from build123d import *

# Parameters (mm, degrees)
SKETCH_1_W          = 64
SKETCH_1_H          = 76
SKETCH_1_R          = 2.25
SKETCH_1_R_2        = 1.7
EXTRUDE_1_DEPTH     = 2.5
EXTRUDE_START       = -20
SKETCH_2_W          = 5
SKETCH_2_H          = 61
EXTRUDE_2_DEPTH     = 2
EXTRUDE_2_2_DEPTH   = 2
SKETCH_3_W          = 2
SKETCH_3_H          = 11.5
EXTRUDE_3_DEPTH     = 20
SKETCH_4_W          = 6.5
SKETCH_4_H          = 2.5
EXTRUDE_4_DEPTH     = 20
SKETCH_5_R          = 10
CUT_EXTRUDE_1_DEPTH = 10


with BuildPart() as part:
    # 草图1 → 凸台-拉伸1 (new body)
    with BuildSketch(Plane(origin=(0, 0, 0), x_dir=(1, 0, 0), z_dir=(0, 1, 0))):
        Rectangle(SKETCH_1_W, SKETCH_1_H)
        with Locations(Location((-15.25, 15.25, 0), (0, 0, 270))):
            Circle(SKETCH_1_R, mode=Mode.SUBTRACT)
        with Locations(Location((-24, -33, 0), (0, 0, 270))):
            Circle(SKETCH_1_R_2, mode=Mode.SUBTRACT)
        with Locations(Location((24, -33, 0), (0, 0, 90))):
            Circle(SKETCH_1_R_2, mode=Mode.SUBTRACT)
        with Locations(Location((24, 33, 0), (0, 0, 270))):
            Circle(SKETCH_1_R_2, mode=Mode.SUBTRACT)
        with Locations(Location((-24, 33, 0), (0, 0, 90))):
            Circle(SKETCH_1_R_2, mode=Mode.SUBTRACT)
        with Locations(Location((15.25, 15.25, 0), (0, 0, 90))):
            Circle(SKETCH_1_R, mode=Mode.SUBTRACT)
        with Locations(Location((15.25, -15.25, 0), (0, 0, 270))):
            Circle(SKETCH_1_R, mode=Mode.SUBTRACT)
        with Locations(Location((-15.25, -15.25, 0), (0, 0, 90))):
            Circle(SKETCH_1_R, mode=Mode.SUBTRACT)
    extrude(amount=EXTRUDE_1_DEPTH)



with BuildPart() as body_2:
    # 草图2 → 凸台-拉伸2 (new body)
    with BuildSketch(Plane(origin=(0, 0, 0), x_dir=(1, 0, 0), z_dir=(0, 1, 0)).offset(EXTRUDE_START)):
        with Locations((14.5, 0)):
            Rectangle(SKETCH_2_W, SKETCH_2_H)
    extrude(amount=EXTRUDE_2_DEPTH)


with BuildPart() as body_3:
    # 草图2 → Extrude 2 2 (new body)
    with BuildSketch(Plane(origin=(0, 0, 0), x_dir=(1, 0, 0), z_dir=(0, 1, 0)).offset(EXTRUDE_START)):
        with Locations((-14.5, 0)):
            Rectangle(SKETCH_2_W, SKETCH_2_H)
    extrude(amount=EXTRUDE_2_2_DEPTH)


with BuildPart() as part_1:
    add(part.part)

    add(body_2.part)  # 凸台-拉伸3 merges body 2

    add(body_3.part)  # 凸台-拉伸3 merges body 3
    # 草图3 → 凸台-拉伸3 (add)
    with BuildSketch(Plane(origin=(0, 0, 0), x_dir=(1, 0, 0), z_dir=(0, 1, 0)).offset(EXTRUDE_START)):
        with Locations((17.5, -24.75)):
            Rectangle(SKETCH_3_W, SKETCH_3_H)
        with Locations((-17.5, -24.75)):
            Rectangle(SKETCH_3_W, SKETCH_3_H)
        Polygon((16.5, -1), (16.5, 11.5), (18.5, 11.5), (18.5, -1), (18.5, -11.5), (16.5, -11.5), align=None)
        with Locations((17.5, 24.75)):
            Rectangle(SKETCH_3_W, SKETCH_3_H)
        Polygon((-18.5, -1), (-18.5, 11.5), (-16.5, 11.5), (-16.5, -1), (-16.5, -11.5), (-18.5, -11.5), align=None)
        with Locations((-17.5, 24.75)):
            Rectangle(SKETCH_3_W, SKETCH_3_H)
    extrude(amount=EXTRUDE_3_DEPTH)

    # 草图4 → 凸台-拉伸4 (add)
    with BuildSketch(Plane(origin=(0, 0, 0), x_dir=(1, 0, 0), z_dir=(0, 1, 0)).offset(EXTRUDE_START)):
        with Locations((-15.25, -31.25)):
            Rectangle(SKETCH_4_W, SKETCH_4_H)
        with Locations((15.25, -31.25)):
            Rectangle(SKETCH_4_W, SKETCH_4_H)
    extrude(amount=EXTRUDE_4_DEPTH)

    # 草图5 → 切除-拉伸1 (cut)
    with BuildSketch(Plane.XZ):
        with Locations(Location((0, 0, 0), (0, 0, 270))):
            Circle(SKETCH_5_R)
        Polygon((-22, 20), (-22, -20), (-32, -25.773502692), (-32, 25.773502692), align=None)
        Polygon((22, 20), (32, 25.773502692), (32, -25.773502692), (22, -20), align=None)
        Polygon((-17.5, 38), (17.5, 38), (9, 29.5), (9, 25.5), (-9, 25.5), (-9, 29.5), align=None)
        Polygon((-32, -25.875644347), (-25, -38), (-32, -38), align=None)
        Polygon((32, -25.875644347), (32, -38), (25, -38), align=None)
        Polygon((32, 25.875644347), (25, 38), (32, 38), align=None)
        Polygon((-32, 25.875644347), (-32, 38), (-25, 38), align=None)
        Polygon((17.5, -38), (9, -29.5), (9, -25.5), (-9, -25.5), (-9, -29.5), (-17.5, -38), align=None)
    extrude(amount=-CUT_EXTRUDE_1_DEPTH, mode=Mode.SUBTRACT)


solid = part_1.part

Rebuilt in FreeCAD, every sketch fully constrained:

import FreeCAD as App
import Part
import Sketcher
from FreeCAD import Vector
Q = App.Units.Quantity

doc = App.newDocument("Part")
body = doc.addObject("PartDesign::Body", "Body")

# Sketch on XZ plane
sketch1 = doc.addObject("Sketcher::SketchObject", "Sketch")
body.addObject(sketch1)
sketch1.AttachmentSupport = (doc.XZ_Plane, [""])
sketch1.MapMode = "FlatFace"
sketch1.addGeometry(Part.LineSegment(Vector(-32, -38, 0), Vector(-32, 38, 0)), False)
sketch1.addGeometry(Part.LineSegment(Vector(-32, 38, 0), Vector(32, 38, 0)), False)
sketch1.addGeometry(Part.LineSegment(Vector(32, 38, 0), Vector(32, -38, 0)), False)
sketch1.addGeometry(Part.LineSegment(Vector(32, -38, 0), Vector(-32, -38, 0)), False)
sketch1.addGeometry(Part.Circle(Vector(-24, 33, 0), Vector(0, 0, 1), 1.7), False)
sketch1.addGeometry(Part.Circle(Vector(-15.2, 15.2, 0), Vector(0, 0, 1), 2.2), False)
sketch1.addGeometry(Part.Circle(Vector(24, 33, 0), Vector(0, 0, 1), 1.7), False)
sketch1.addGeometry(Part.Circle(Vector(15.2, 15.2, 0), Vector(0, 0, 1), 2.2), False)
sketch1.addGeometry(Part.Circle(Vector(-15.2, -15.2, 0), Vector(0, 0, 1), 2.2), False)
sketch1.addGeometry(Part.Circle(Vector(-24, -33, 0), Vector(0, 0, 1), 1.7), False)
sketch1.addGeometry(Part.Circle(Vector(15.2, -15.2, 0), Vector(0, 0, 1), 2.2), False)
sketch1.addGeometry(Part.Circle(Vector(24, -33, 0), Vector(0, 0, 1), 1.7), False)
sketch1.addConstraint(Sketcher.Constraint("Coincident", 0, 2, 1, 1))
sketch1.addConstraint(Sketcher.Constraint("Coincident", 1, 2, 2, 1))
sketch1.addConstraint(Sketcher.Constraint("Coincident", 2, 2, 3, 1))
sketch1.addConstraint(Sketcher.Constraint("Coincident", 3, 2, 0, 1))
sketch1.addConstraint(Sketcher.Constraint("Vertical", 0))
sketch1.addConstraint(Sketcher.Constraint("Horizontal", 1))
sketch1.addConstraint(Sketcher.Constraint("Vertical", 2))
sketch1.addConstraint(Sketcher.Constraint("Horizontal", 3))
sketch1.addConstraint(Sketcher.Constraint("Equal", 4, 6))
sketch1.addConstraint(Sketcher.Constraint("Equal", 5, 7))
sketch1.addConstraint(Sketcher.Constraint("Equal", 7, 8))
sketch1.addConstraint(Sketcher.Constraint("Equal", 6, 9))
sketch1.addConstraint(Sketcher.Constraint("Equal", 8, 10))
sketch1.addConstraint(Sketcher.Constraint("Equal", 9, 11))
sketch1.addConstraint(Sketcher.Constraint("Symmetric", 7, 3, 8, 3, -1, 1))
sketch1.addConstraint(Sketcher.Constraint("Symmetric", 6, 3, 9, 3, -1, 1))
sketch1.addConstraint(Sketcher.Constraint("Symmetric", 5, 3, 10, 3, -1, 1))
sketch1.addConstraint(Sketcher.Constraint("Symmetric", 4, 3, 11, 3, -1, 1))
sketch1.addConstraint(Sketcher.Constraint("Symmetric", 0, 2, 2, 2, -1, 1))
sketch1.addConstraint(Sketcher.Constraint("Symmetric", 4, 3, 6, 3, -2))
sketch1.addConstraint(Sketcher.Constraint("Symmetric", 5, 3, 7, 3, -2))
sketch1.addConstraint(Sketcher.Constraint("Diameter", 4, 3.4))
sketch1.addConstraint(Sketcher.Constraint("Diameter", 5, 4.5))
sketch1.addConstraint(Sketcher.Constraint("DistanceX", 1, 1, 1, 2, 64.0))
sketch1.addConstraint(Sketcher.Constraint("DistanceY", 0, 1, 0, 2, 76.0))
sketch1.addConstraint(Sketcher.Constraint("DistanceX", 4, 3, -1, 1, 24.0))
sketch1.addConstraint(Sketcher.Constraint("DistanceY", -1, 1, 4, 3, 33.0))
sketch1.addConstraint(Sketcher.Constraint("DistanceX", 5, 3, 7, 3, 30.5))
sketch1.addConstraint(Sketcher.Constraint("DistanceY", 8, 3, 5, 3, 30.5))
pad1 = doc.addObject("PartDesign::Pad", "Pad")
body.addObject(pad1)
pad1.Profile = sketch1
pad1.Length = 2.5
pad1.Reversed = True
body2 = doc.addObject("PartDesign::Body", "Body001")

# Sketch on XZ plane
sketch2 = doc.addObject("Sketcher::SketchObject", "Sketch001")
body2.addObject(sketch2)
sketch2.AttachmentSupport = (doc.getObject("XZ_Plane001"), [""])
sketch2.MapMode = "FlatFace"
sketch2.AttachmentOffset = App.Placement(Vector(0, 0, 20), App.Rotation())
sketch2.addGeometry(Part.LineSegment(Vector(12, -30, 0), Vector(12, 30, 0)), False)
sketch2.addGeometry(Part.LineSegment(Vector(12, 30, 0), Vector(17, 30, 0)), False)
sketch2.addGeometry(Part.LineSegment(Vector(17, 30, 0), Vector(17, -30, 0)), False)
sketch2.addGeometry(Part.LineSegment(Vector(17, -30, 0), Vector(12, -30, 0)), False)
sketch2.addConstraint(Sketcher.Constraint("Coincident", 0, 2, 1, 1))
sketch2.addConstraint(Sketcher.Constraint("Coincident", 1, 2, 2, 1))
sketch2.addConstraint(Sketcher.Constraint("Coincident", 2, 2, 3, 1))
sketch2.addConstraint(Sketcher.Constraint("Coincident", 3, 2, 0, 1))
sketch2.addConstraint(Sketcher.Constraint("Vertical", 0))
sketch2.addConstraint(Sketcher.Constraint("Horizontal", 1))
sketch2.addConstraint(Sketcher.Constraint("Vertical", 2))
sketch2.addConstraint(Sketcher.Constraint("Horizontal", 3))
sketch2.addConstraint(Sketcher.Constraint("DistanceX", 1, 1, 1, 2, 5.0))
sketch2.addConstraint(Sketcher.Constraint("DistanceY", 0, 1, 0, 2, 61.0))
sketch2.addConstraint(Sketcher.Constraint("DistanceX", -1, 1, 0, 2, 12.0))
sketch2.addConstraint(Sketcher.Constraint("DistanceY", -1, 1, 0, 2, 30.5))
pad2 = doc.addObject("PartDesign::Pad", "Pad001")
body2.addObject(pad2)
pad2.Profile = sketch2
pad2.Length = 2
pad2.Reversed = True
body3 = doc.addObject("PartDesign::Body", "Body002")

# Sketch on XZ plane
sketch3 = doc.addObject("Sketcher::SketchObject", "Sketch002")
body3.addObject(sketch3)
sketch3.AttachmentSupport = (doc.getObject("XZ_Plane002"), [""])
sketch3.MapMode = "FlatFace"
sketch3.AttachmentOffset = App.Placement(Vector(0, 0, 20), App.Rotation())
sketch3.addGeometry(Part.LineSegment(Vector(-17, -30, 0), Vector(-17, 30, 0)), False)
sketch3.addGeometry(Part.LineSegment(Vector(-17, 30, 0), Vector(-12, 30, 0)), False)
sketch3.addGeometry(Part.LineSegment(Vector(-12, 30, 0), Vector(-12, -30, 0)), False)
sketch3.addGeometry(Part.LineSegment(Vector(-12, -30, 0), Vector(-17, -30, 0)), False)
sketch3.addConstraint(Sketcher.Constraint("Coincident", 0, 2, 1, 1))
sketch3.addConstraint(Sketcher.Constraint("Coincident", 1, 2, 2, 1))
sketch3.addConstraint(Sketcher.Constraint("Coincident", 2, 2, 3, 1))
sketch3.addConstraint(Sketcher.Constraint("Coincident", 3, 2, 0, 1))
sketch3.addConstraint(Sketcher.Constraint("Vertical", 0))
sketch3.addConstraint(Sketcher.Constraint("Horizontal", 1))
sketch3.addConstraint(Sketcher.Constraint("Vertical", 2))
sketch3.addConstraint(Sketcher.Constraint("Horizontal", 3))
sketch3.addConstraint(Sketcher.Constraint("DistanceX", 1, 1, 1, 2, 5.0))
sketch3.addConstraint(Sketcher.Constraint("DistanceY", 0, 1, 0, 2, 61.0))
sketch3.addConstraint(Sketcher.Constraint("DistanceX", 0, 2, -1, 1, 17.0))
sketch3.addConstraint(Sketcher.Constraint("DistanceY", -1, 1, 0, 2, 30.5))
pad3 = doc.addObject("PartDesign::Pad", "Pad002")
body3.addObject(pad3)
pad3.Profile = sketch3
pad3.Length = 2
pad3.Reversed = True
body.AllowCompound = True
doc.recompute()

boolean = doc.addObject("PartDesign::Boolean", "Boolean")
body.addObject(boolean)
boolean.Type = "Fuse"
boolean.addObjects([body2])
doc.recompute()

boolean2 = doc.addObject("PartDesign::Boolean", "Boolean001")
body.addObject(boolean2)
boolean2.Type = "Fuse"
boolean2.addObjects([body3])

# Sketch on XZ plane
sketch4 = doc.addObject("Sketcher::SketchObject", "Sketch003")
body.addObject(sketch4)
sketch4.AttachmentSupport = (doc.XZ_Plane, [""])
sketch4.MapMode = "FlatFace"
sketch4.AttachmentOffset = App.Placement(Vector(0, 0, 20), App.Rotation())
sketch4.addGeometry(Part.LineSegment(Vector(16.5, 19, 0), Vector(16.5, 30.5, 0)), False)
sketch4.addGeometry(Part.LineSegment(Vector(16.5, 30.5, 0), Vector(18.5, 30.5, 0)), False)
sketch4.addGeometry(Part.LineSegment(Vector(18.5, 30.5, 0), Vector(18.5, 19, 0)), False)
sketch4.addGeometry(Part.LineSegment(Vector(18.5, 19, 0), Vector(16.5, 19, 0)), False)
sketch4.addGeometry(Part.LineSegment(Vector(-18.5, 19, 0), Vector(-18.5, 30.5, 0)), False)
sketch4.addGeometry(Part.LineSegment(Vector(-18.5, 30.5, 0), Vector(-16.5, 30.5, 0)), False)
sketch4.addGeometry(Part.LineSegment(Vector(-16.5, 30.5, 0), Vector(-16.5, 19, 0)), False)
sketch4.addGeometry(Part.LineSegment(Vector(-16.5, 19, 0), Vector(-18.5, 19, 0)), False)
sketch4.addGeometry(Part.LineSegment(Vector(16.5, -11.5, 0), Vector(16.5, 11.5, 0)), False)
sketch4.addGeometry(Part.LineSegment(Vector(16.5, 11.5, 0), Vector(18.5, 11.5, 0)), False)
sketch4.addGeometry(Part.LineSegment(Vector(18.5, 11.5, 0), Vector(18.5, -11.5, 0)), False)
sketch4.addGeometry(Part.LineSegment(Vector(18.5, -11.5, 0), Vector(16.5, -11.5, 0)), False)
sketch4.addGeometry(Part.LineSegment(Vector(16.5, -30.5, 0), Vector(16.5, -19, 0)), False)
sketch4.addGeometry(Part.LineSegment(Vector(16.5, -19, 0), Vector(18.5, -19, 0)), False)
sketch4.addGeometry(Part.LineSegment(Vector(18.5, -19, 0), Vector(18.5, -30.5, 0)), False)
sketch4.addGeometry(Part.LineSegment(Vector(18.5, -30.5, 0), Vector(16.5, -30.5, 0)), False)
sketch4.addGeometry(Part.LineSegment(Vector(-18.5, -11.5, 0), Vector(-18.5, 11.5, 0)), False)
sketch4.addGeometry(Part.LineSegment(Vector(-18.5, 11.5, 0), Vector(-16.5, 11.5, 0)), False)
sketch4.addGeometry(Part.LineSegment(Vector(-16.5, 11.5, 0), Vector(-16.5, -11.5, 0)), False)
sketch4.addGeometry(Part.LineSegment(Vector(-16.5, -11.5, 0), Vector(-18.5, -11.5, 0)), False)
sketch4.addGeometry(Part.LineSegment(Vector(-18.5, -30.5, 0), Vector(-18.5, -19, 0)), False)
sketch4.addGeometry(Part.LineSegment(Vector(-18.5, -19, 0), Vector(-16.5, -19, 0)), False)
sketch4.addGeometry(Part.LineSegment(Vector(-16.5, -19, 0), Vector(-16.5, -30.5, 0)), False)
sketch4.addGeometry(Part.LineSegment(Vector(-16.5, -30.5, 0), Vector(-18.5, -30.5, 0)), False)
sketch4.addConstraint(Sketcher.Constraint("Coincident", 0, 2, 1, 1))
sketch4.addConstraint(Sketcher.Constraint("Coincident", 1, 2, 2, 1))
sketch4.addConstraint(Sketcher.Constraint("Coincident", 2, 2, 3, 1))
sketch4.addConstraint(Sketcher.Constraint("Coincident", 3, 2, 0, 1))
sketch4.addConstraint(Sketcher.Constraint("Coincident", 4, 2, 5, 1))
sketch4.addConstraint(Sketcher.Constraint("Coincident", 5, 2, 6, 1))
sketch4.addConstraint(Sketcher.Constraint("Coincident", 6, 2, 7, 1))
sketch4.addConstraint(Sketcher.Constraint("Coincident", 7, 2, 4, 1))
sketch4.addConstraint(Sketcher.Constraint("Coincident", 8, 2, 9, 1))
sketch4.addConstraint(Sketcher.Constraint("Coincident", 9, 2, 10, 1))
sketch4.addConstraint(Sketcher.Constraint("Coincident", 10, 2, 11, 1))
sketch4.addConstraint(Sketcher.Constraint("Coincident", 11, 2, 8, 1))
sketch4.addConstraint(Sketcher.Constraint("Coincident", 12, 2, 13, 1))
sketch4.addConstraint(Sketcher.Constraint("Coincident", 13, 2, 14, 1))
sketch4.addConstraint(Sketcher.Constraint("Coincident", 14, 2, 15, 1))
sketch4.addConstraint(Sketcher.Constraint("Coincident", 15, 2, 12, 1))
sketch4.addConstraint(Sketcher.Constraint("Coincident", 16, 2, 17, 1))
sketch4.addConstraint(Sketcher.Constraint("Coincident", 17, 2, 18, 1))
sketch4.addConstraint(Sketcher.Constraint("Coincident", 18, 2, 19, 1))
sketch4.addConstraint(Sketcher.Constraint("Coincident", 19, 2, 16, 1))
sketch4.addConstraint(Sketcher.Constraint("Coincident", 20, 2, 21, 1))
sketch4.addConstraint(Sketcher.Constraint("Coincident", 21, 2, 22, 1))
sketch4.addConstraint(Sketcher.Constraint("Coincident", 22, 2, 23, 1))
sketch4.addConstraint(Sketcher.Constraint("Coincident", 23, 2, 20, 1))
sketch4.addConstraint(Sketcher.Constraint("Vertical", 0))
sketch4.addConstraint(Sketcher.Constraint("Horizontal", 1))
sketch4.addConstraint(Sketcher.Constraint("Vertical", 2))
sketch4.addConstraint(Sketcher.Constraint("Horizontal", 3))
sketch4.addConstraint(Sketcher.Constraint("Vertical", 4))
sketch4.addConstraint(Sketcher.Constraint("Horizontal", 5))
sketch4.addConstraint(Sketcher.Constraint("Vertical", 6))
sketch4.addConstraint(Sketcher.Constraint("Horizontal", 7))
sketch4.addConstraint(Sketcher.Constraint("Vertical", 8))
sketch4.addConstraint(Sketcher.Constraint("Horizontal", 9))
sketch4.addConstraint(Sketcher.Constraint("Vertical", 10))
sketch4.addConstraint(Sketcher.Constraint("Horizontal", 11))
sketch4.addConstraint(Sketcher.Constraint("Vertical", 12))
sketch4.addConstraint(Sketcher.Constraint("Horizontal", 13))
sketch4.addConstraint(Sketcher.Constraint("Vertical", 14))
sketch4.addConstraint(Sketcher.Constraint("Horizontal", 15))
sketch4.addConstraint(Sketcher.Constraint("Vertical", 16))
sketch4.addConstraint(Sketcher.Constraint("Horizontal", 17))
sketch4.addConstraint(Sketcher.Constraint("Vertical", 18))
sketch4.addConstraint(Sketcher.Constraint("Horizontal", 19))
sketch4.addConstraint(Sketcher.Constraint("Vertical", 20))
sketch4.addConstraint(Sketcher.Constraint("Horizontal", 21))
sketch4.addConstraint(Sketcher.Constraint("Vertical", 22))
sketch4.addConstraint(Sketcher.Constraint("Horizontal", 23))
sketch4.addConstraint(Sketcher.Constraint("Symmetric", 6, 2, 12, 2, -1, 1))
sketch4.addConstraint(Sketcher.Constraint("Symmetric", 4, 2, 14, 2, -1, 1))
sketch4.addConstraint(Sketcher.Constraint("Symmetric", 10, 2, 16, 2, -1, 1))
sketch4.addConstraint(Sketcher.Constraint("Symmetric", 8, 2, 18, 2, -1, 1))
sketch4.addConstraint(Sketcher.Constraint("Symmetric", 2, 2, 20, 2, -1, 1))
sketch4.addConstraint(Sketcher.Constraint("Symmetric", 0, 2, 22, 2, -1, 1))
sketch4.addConstraint(Sketcher.Constraint("Symmetric", 1, 2, 4, 2, -2))
sketch4.addConstraint(Sketcher.Constraint("Symmetric", 3, 2, 6, 2, -2))
sketch4.addConstraint(Sketcher.Constraint("Horizontal", 9, 2, 16, 2))
sketch4.addConstraint(Sketcher.Constraint("Vertical", 3, 2, 8, 2))
sketch4.addConstraint(Sketcher.Constraint("Vertical", 2, 2, 9, 2))
sketch4.addConstraint(Sketcher.Constraint("DistanceX", 1, 1, 1, 2, 2.0))
sketch4.addConstraint(Sketcher.Constraint("DistanceY", 8, 1, 8, 2, 23.0))
sketch4.addConstraint(Sketcher.Constraint("DistanceY", 0, 1, 0, 2, 11.5))
sketch4.addConstraint(Sketcher.Constraint("DistanceY", -1, 1, 2, 2, 19.0))
sketch4.addConstraint(Sketcher.Constraint("DistanceX", 4, 2, 0, 2, 35.0))
pad4 = doc.addObject("PartDesign::Pad", "Pad003")
body.addObject(pad4)
pad4.Profile = sketch4
pad4.Length = 20
pad4.Reversed = True

# Sketch on XZ plane
sketch5 = doc.addObject("Sketcher::SketchObject", "Sketch004")
body.addObject(sketch5)
sketch5.AttachmentSupport = (doc.XZ_Plane, [""])
sketch5.MapMode = "FlatFace"
sketch5.AttachmentOffset = App.Placement(Vector(0, 0, 20), App.Rotation())
sketch5.addGeometry(Part.LineSegment(Vector(-18.5, 30, 0), Vector(-18.5, 32.5, 0)), False)
sketch5.addGeometry(Part.LineSegment(Vector(-18.5, 32.5, 0), Vector(-12, 32.5, 0)), False)
sketch5.addGeometry(Part.LineSegment(Vector(-12, 32.5, 0), Vector(-12, 30, 0)), False)
sketch5.addGeometry(Part.LineSegment(Vector(-12, 30, 0), Vector(-18.5, 30, 0)), False)
sketch5.addGeometry(Part.LineSegment(Vector(12, 30, 0), Vector(12, 32.5, 0)), False)
sketch5.addGeometry(Part.LineSegment(Vector(12, 32.5, 0), Vector(18.5, 32.5, 0)), False)
sketch5.addGeometry(Part.LineSegment(Vector(18.5, 32.5, 0), Vector(18.5, 30, 0)), False)
sketch5.addGeometry(Part.LineSegment(Vector(18.5, 30, 0), Vector(12, 30, 0)), False)
sketch5.addConstraint(Sketcher.Constraint("Coincident", 0, 2, 1, 1))
sketch5.addConstraint(Sketcher.Constraint("Coincident", 1, 2, 2, 1))
sketch5.addConstraint(Sketcher.Constraint("Coincident", 2, 2, 3, 1))
sketch5.addConstraint(Sketcher.Constraint("Coincident", 3, 2, 0, 1))
sketch5.addConstraint(Sketcher.Constraint("Coincident", 4, 2, 5, 1))
sketch5.addConstraint(Sketcher.Constraint("Coincident", 5, 2, 6, 1))
sketch5.addConstraint(Sketcher.Constraint("Coincident", 6, 2, 7, 1))
sketch5.addConstraint(Sketcher.Constraint("Coincident", 7, 2, 4, 1))
sketch5.addConstraint(Sketcher.Constraint("Vertical", 0))
sketch5.addConstraint(Sketcher.Constraint("Horizontal", 1))
sketch5.addConstraint(Sketcher.Constraint("Vertical", 2))
sketch5.addConstraint(Sketcher.Constraint("Horizontal", 3))
sketch5.addConstraint(Sketcher.Constraint("Vertical", 4))
sketch5.addConstraint(Sketcher.Constraint("Horizontal", 5))
sketch5.addConstraint(Sketcher.Constraint("Vertical", 6))
sketch5.addConstraint(Sketcher.Constraint("Horizontal", 7))
sketch5.addConstraint(Sketcher.Constraint("Symmetric", 1, 2, 4, 2, -2))
sketch5.addConstraint(Sketcher.Constraint("Symmetric", 3, 2, 6, 2, -2))
sketch5.addConstraint(Sketcher.Constraint("DistanceX", 1, 1, 1, 2, 6.5))
sketch5.addConstraint(Sketcher.Constraint("DistanceY", 0, 1, 0, 2, 2.5))
sketch5.addConstraint(Sketcher.Constraint("DistanceX", 1, 2, -1, 1, 12.0))
sketch5.addConstraint(Sketcher.Constraint("DistanceY", -1, 1, 2, 2, 30.0))
pad5 = doc.addObject("PartDesign::Pad", "Pad004")
body.addObject(pad5)
pad5.Profile = sketch5
pad5.Length = 20
pad5.Reversed = True

# Sketch on XZ plane
sketch6 = doc.addObject("Sketcher::SketchObject", "Sketch005")
body.addObject(sketch6)
sketch6.AttachmentSupport = (doc.XZ_Plane, [""])
sketch6.MapMode = "FlatFace"
sketch6.addGeometry(Part.Circle(Vector(0, 0, 0), Vector(0, 0, 1), 10), False)
sketch6.addGeometry(Part.LineSegment(Vector(-22, -20, 0), Vector(-22, 20, 0)), False)
sketch6.addGeometry(Part.LineSegment(Vector(-22, 20, 0), Vector(-32, 25.8, 0)), False)
sketch6.addGeometry(Part.LineSegment(Vector(-32, 25.8, 0), Vector(-32, -25.8, 0)), False)
sketch6.addGeometry(Part.LineSegment(Vector(-32, -25.8, 0), Vector(-22, -20, 0)), False)
sketch6.addGeometry(Part.LineSegment(Vector(32, 25.8, 0), Vector(22, 20, 0)), False)
sketch6.addGeometry(Part.LineSegment(Vector(22, 20, 0), Vector(22, -20, 0)), False)
sketch6.addGeometry(Part.LineSegment(Vector(22, -20, 0), Vector(32, -25.8, 0)), False)
sketch6.addGeometry(Part.LineSegment(Vector(32, -25.8, 0), Vector(32, 25.8, 0)), False)
sketch6.addGeometry(Part.LineSegment(Vector(17.5, 38, 0), Vector(-17.5, 38, 0)), False)
sketch6.addGeometry(Part.LineSegment(Vector(-17.5, 38, 0), Vector(-9, 29.5, 0)), False)
sketch6.addGeometry(Part.LineSegment(Vector(-9, 29.5, 0), Vector(-9, 25.5, 0)), False)
sketch6.addGeometry(Part.LineSegment(Vector(-9, 25.5, 0), Vector(9, 25.5, 0)), False)
sketch6.addGeometry(Part.LineSegment(Vector(9, 25.5, 0), Vector(9, 29.5, 0)), False)
sketch6.addGeometry(Part.LineSegment(Vector(9, 29.5, 0), Vector(17.5, 38, 0)), False)
sketch6.addGeometry(Part.LineSegment(Vector(-25, -38, 0), Vector(-32, -25.9, 0)), False)
sketch6.addGeometry(Part.LineSegment(Vector(-32, -25.9, 0), Vector(-32, -38, 0)), False)
sketch6.addGeometry(Part.LineSegment(Vector(-32, -38, 0), Vector(-25, -38, 0)), False)
sketch6.addGeometry(Part.LineSegment(Vector(32, -38, 0), Vector(32, -25.9, 0)), False)
sketch6.addGeometry(Part.LineSegment(Vector(32, -25.9, 0), Vector(25, -38, 0)), False)
sketch6.addGeometry(Part.LineSegment(Vector(25, -38, 0), Vector(32, -38, 0)), False)
sketch6.addGeometry(Part.LineSegment(Vector(25, 38, 0), Vector(32, 25.9, 0)), False)
sketch6.addGeometry(Part.LineSegment(Vector(32, 25.9, 0), Vector(32, 38, 0)), False)
sketch6.addGeometry(Part.LineSegment(Vector(32, 38, 0), Vector(25, 38, 0)), False)
sketch6.addGeometry(Part.LineSegment(Vector(-32, 38, 0), Vector(-32, 25.9, 0)), False)
sketch6.addGeometry(Part.LineSegment(Vector(-32, 25.9, 0), Vector(-25, 38, 0)), False)
sketch6.addGeometry(Part.LineSegment(Vector(-25, 38, 0), Vector(-32, 38, 0)), False)
sketch6.addGeometry(Part.LineSegment(Vector(17.5, -38, 0), Vector(9, -29.5, 0)), False)
sketch6.addGeometry(Part.LineSegment(Vector(9, -29.5, 0), Vector(9, -25.5, 0)), False)
sketch6.addGeometry(Part.LineSegment(Vector(9, -25.5, 0), Vector(-9, -25.5, 0)), False)
sketch6.addGeometry(Part.LineSegment(Vector(-9, -25.5, 0), Vector(-9, -29.5, 0)), False)
sketch6.addGeometry(Part.LineSegment(Vector(-9, -29.5, 0), Vector(-17.5, -38, 0)), False)
sketch6.addGeometry(Part.LineSegment(Vector(-17.5, -38, 0), Vector(17.5, -38, 0)), False)
sketch6.addConstraint(Sketcher.Constraint("Coincident", 1, 2, 2, 1))
sketch6.addConstraint(Sketcher.Constraint("Coincident", 2, 2, 3, 1))
sketch6.addConstraint(Sketcher.Constraint("Coincident", 3, 2, 4, 1))
sketch6.addConstraint(Sketcher.Constraint("Coincident", 4, 2, 1, 1))
sketch6.addConstraint(Sketcher.Constraint("Coincident", 5, 2, 6, 1))
sketch6.addConstraint(Sketcher.Constraint("Coincident", 6, 2, 7, 1))
sketch6.addConstraint(Sketcher.Constraint("Coincident", 7, 2, 8, 1))
sketch6.addConstraint(Sketcher.Constraint("Coincident", 8, 2, 5, 1))
sketch6.addConstraint(Sketcher.Constraint("Coincident", 9, 2, 10, 1))
sketch6.addConstraint(Sketcher.Constraint("Coincident", 10, 2, 11, 1))
sketch6.addConstraint(Sketcher.Constraint("Coincident", 11, 2, 12, 1))
sketch6.addConstraint(Sketcher.Constraint("Coincident", 12, 2, 13, 1))
sketch6.addConstraint(Sketcher.Constraint("Coincident", 13, 2, 14, 1))
sketch6.addConstraint(Sketcher.Constraint("Coincident", 14, 2, 9, 1))
sketch6.addConstraint(Sketcher.Constraint("Coincident", 15, 2, 16, 1))
sketch6.addConstraint(Sketcher.Constraint("Coincident", 16, 2, 17, 1))
sketch6.addConstraint(Sketcher.Constraint("Coincident", 17, 2, 15, 1))
sketch6.addConstraint(Sketcher.Constraint("Coincident", 18, 2, 19, 1))
sketch6.addConstraint(Sketcher.Constraint("Coincident", 19, 2, 20, 1))
sketch6.addConstraint(Sketcher.Constraint("Coincident", 20, 2, 18, 1))
sketch6.addConstraint(Sketcher.Constraint("Coincident", 21, 2, 22, 1))
sketch6.addConstraint(Sketcher.Constraint("Coincident", 22, 2, 23, 1))
sketch6.addConstraint(Sketcher.Constraint("Coincident", 23, 2, 21, 1))
sketch6.addConstraint(Sketcher.Constraint("Coincident", 24, 2, 25, 1))
sketch6.addConstraint(Sketcher.Constraint("Coincident", 25, 2, 26, 1))
sketch6.addConstraint(Sketcher.Constraint("Coincident", 26, 2, 24, 1))
sketch6.addConstraint(Sketcher.Constraint("Coincident", 27, 2, 28, 1))
sketch6.addConstraint(Sketcher.Constraint("Coincident", 28, 2, 29, 1))
sketch6.addConstraint(Sketcher.Constraint("Coincident", 29, 2, 30, 1))
sketch6.addConstraint(Sketcher.Constraint("Coincident", 30, 2, 31, 1))
sketch6.addConstraint(Sketcher.Constraint("Coincident", 31, 2, 32, 1))
sketch6.addConstraint(Sketcher.Constraint("Coincident", 32, 2, 27, 1))
sketch6.addConstraint(Sketcher.Constraint("Vertical", 1))
sketch6.addConstraint(Sketcher.Constraint("Vertical", 3))
sketch6.addConstraint(Sketcher.Constraint("Vertical", 6))
sketch6.addConstraint(Sketcher.Constraint("Vertical", 8))
sketch6.addConstraint(Sketcher.Constraint("Horizontal", 9))
sketch6.addConstraint(Sketcher.Constraint("Vertical", 11))
sketch6.addConstraint(Sketcher.Constraint("Horizontal", 12))
sketch6.addConstraint(Sketcher.Constraint("Vertical", 13))
sketch6.addConstraint(Sketcher.Constraint("Vertical", 16))
sketch6.addConstraint(Sketcher.Constraint("Horizontal", 17))
sketch6.addConstraint(Sketcher.Constraint("Vertical", 18))
sketch6.addConstraint(Sketcher.Constraint("Horizontal", 20))
sketch6.addConstraint(Sketcher.Constraint("Vertical", 22))
sketch6.addConstraint(Sketcher.Constraint("Horizontal", 23))
sketch6.addConstraint(Sketcher.Constraint("Vertical", 24))
sketch6.addConstraint(Sketcher.Constraint("Horizontal", 26))
sketch6.addConstraint(Sketcher.Constraint("Vertical", 28))
sketch6.addConstraint(Sketcher.Constraint("Horizontal", 29))
sketch6.addConstraint(Sketcher.Constraint("Vertical", 30))
sketch6.addConstraint(Sketcher.Constraint("Horizontal", 32))
sketch6.addConstraint(Sketcher.Constraint("Coincident", 0, 3, -1, 1))
sketch6.addConstraint(Sketcher.Constraint("Symmetric", 4, 2, 5, 2, -1, 1))
sketch6.addConstraint(Sketcher.Constraint("Symmetric", 2, 2, 7, 2, -1, 1))
sketch6.addConstraint(Sketcher.Constraint("Symmetric", 15, 2, 21, 2, -1, 1))
sketch6.addConstraint(Sketcher.Constraint("Symmetric", 17, 2, 23, 2, -1, 1))
sketch6.addConstraint(Sketcher.Constraint("Symmetric", 18, 2, 24, 2, -1, 1))
sketch6.addConstraint(Sketcher.Constraint("Symmetric", 19, 2, 25, 2, -1, 1))
sketch6.addConstraint(Sketcher.Constraint("Symmetric", 10, 2, 27, 2, -1, 1))
sketch6.addConstraint(Sketcher.Constraint("Symmetric", 12, 2, 29, 2, -1, 1))
sketch6.addConstraint(Sketcher.Constraint("Symmetric", 14, 2, 31, 2, -1, 1))
sketch6.addConstraint(Sketcher.Constraint("Symmetric", 10, 2, 13, 2, -2))
sketch6.addConstraint(Sketcher.Constraint("Symmetric", 15, 2, 18, 2, -2))
sketch6.addConstraint(Sketcher.Constraint("Symmetric", 17, 2, 19, 2, -2))
sketch6.addConstraint(Sketcher.Constraint("Parallel", 4, 5))
sketch6.addConstraint(Sketcher.Constraint("Parallel", 2, 7))
sketch6.addConstraint(Sketcher.Constraint("Perpendicular", 10, 14))
sketch6.addConstraint(Sketcher.Constraint("Perpendicular", 5, 15))
sketch6.addConstraint(Sketcher.Constraint("Perpendicular", 7, 19))
sketch6.addConstraint(Sketcher.Constraint("Perpendicular", 14, 27))
sketch6.addConstraint(Sketcher.Constraint("Perpendicular", 27, 31))
sketch6.addConstraint(Sketcher.Constraint("Horizontal", 1, 2, 5, 2))
sketch6.addConstraint(Sketcher.Constraint("Horizontal", 14, 2, 22, 2))
sketch6.addConstraint(Sketcher.Constraint("Vertical", 3, 2, 15, 2))
sketch6.addConstraint(Sketcher.Constraint("Vertical", 9, 2, 31, 2))
sketch6.addConstraint(Sketcher.Constraint("Diameter", 0, 20.0))
sketch6.addConstraint(Sketcher.Constraint("DistanceX", 9, 2, 9, 1, 35.0))
sketch6.addConstraint(Sketcher.Constraint("DistanceX", 12, 1, 12, 2, 18.0))
sketch6.addConstraint(Sketcher.Constraint("DistanceX", 17, 1, 17, 2, 7.0))
sketch6.addConstraint(Sketcher.Constraint("DistanceY", 1, 1, 1, 2, 40.0))
sketch6.addConstraint(Sketcher.Constraint("DistanceY", 11, 2, 11, 1, 4.0))
sketch6.addConstraint(Sketcher.Constraint("Angle", 2, Q("150 deg")))
sketch6.addConstraint(Sketcher.Constraint("DistanceX", 1, 2, -1, 1, 22.0))
sketch6.addConstraint(Sketcher.Constraint("DistanceX", 2, 2, -1, 1, 32.0))
sketch6.addConstraint(Sketcher.Constraint("DistanceY", -1, 1, 9, 2, 38.0))
pocket1 = doc.addObject("PartDesign::Pocket", "Pocket")
body.addObject(pocket1)
pocket1.Profile = sketch6
pocket1.Length = 10

doc.recompute()
